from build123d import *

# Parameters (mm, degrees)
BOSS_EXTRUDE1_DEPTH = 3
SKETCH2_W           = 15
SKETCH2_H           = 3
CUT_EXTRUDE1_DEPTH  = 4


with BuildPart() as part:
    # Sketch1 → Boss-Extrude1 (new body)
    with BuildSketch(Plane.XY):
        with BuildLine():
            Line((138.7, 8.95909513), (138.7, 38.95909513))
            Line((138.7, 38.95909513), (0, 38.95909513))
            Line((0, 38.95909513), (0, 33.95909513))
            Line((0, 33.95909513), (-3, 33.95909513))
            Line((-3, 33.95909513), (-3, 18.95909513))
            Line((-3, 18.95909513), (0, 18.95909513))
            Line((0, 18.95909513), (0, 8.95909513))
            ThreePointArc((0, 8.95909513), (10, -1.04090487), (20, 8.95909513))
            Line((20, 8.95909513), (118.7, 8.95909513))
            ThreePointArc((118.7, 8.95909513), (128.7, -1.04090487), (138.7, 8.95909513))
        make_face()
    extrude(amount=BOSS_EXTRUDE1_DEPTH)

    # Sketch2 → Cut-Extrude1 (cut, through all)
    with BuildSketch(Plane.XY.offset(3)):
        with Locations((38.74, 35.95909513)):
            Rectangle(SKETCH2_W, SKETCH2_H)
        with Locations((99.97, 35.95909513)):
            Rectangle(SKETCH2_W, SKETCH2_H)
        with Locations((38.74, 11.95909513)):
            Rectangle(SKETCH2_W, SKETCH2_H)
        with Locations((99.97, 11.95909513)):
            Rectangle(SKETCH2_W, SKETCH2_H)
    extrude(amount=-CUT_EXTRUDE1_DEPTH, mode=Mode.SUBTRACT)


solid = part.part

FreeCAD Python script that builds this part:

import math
import FreeCAD as App
import Part
import Sketcher


def add_polygon(sketch, points):
    """Adds a closed chain of lines whose ends are joined by coincident constraints."""
    first, n = sketch.GeometryCount, len(points)
    for a, b in zip(points, points[1:] + points[:1]):
        sketch.addGeometry(Part.LineSegment(App.Vector(*a, 0), App.Vector(*b, 0)), False)
    for i in range(n):
        sketch.addConstraint(Sketcher.Constraint("Coincident", first + i, 2, first + (i + 1) % n, 1))

doc = App.newDocument("Part")
body = doc.addObject("PartDesign::Body", "Body")

sketch1 = body.newObject("Sketcher::SketchObject", "Sketch")
sketch1.AttachmentSupport = (doc.getObject("XY_Plane"), [""])
sketch1.MapMode = "FlatFace"
sketch1.addGeometry(Part.LineSegment(App.Vector(138.7, 9, 0), App.Vector(138.7, 39, 0)), False)
sketch1.addGeometry(Part.LineSegment(App.Vector(138.7, 39, 0), App.Vector(0, 39, 0)), False)
sketch1.addGeometry(Part.LineSegment(App.Vector(0, 39, 0), App.Vector(0, 34, 0)), False)
sketch1.addGeometry(Part.LineSegment(App.Vector(0, 34, 0), App.Vector(-3, 34, 0)), False)
sketch1.addGeometry(Part.LineSegment(App.Vector(-3, 34, 0), App.Vector(-3, 19, 0)), False)
sketch1.addGeometry(Part.LineSegment(App.Vector(-3, 19, 0), App.Vector(0, 19, 0)), False)
sketch1.addGeometry(Part.LineSegment(App.Vector(0, 19, 0), App.Vector(0, 9, 0)), False)
sketch1.addGeometry(Part.ArcOfCircle(Part.Circle(App.Vector(10, 9, 0), App.Vector(0, 0, 1), 10), math.radians(180), math.radians(360)), False)
sketch1.addGeometry(Part.LineSegment(App.Vector(20, 9, 0), App.Vector(118.7, 9, 0)), False)
sketch1.addGeometry(Part.ArcOfCircle(Part.Circle(App.Vector(128.7, 9, 0), App.Vector(0, 0, 1), 10), math.radians(180), math.radians(360)), False)
sketch1.addConstraint(Sketcher.Constraint("Coincident", 0, 2, 1, 1))
sketch1.addConstraint(Sketcher.Constraint("Coincident", 1, 2, 2, 1))
sketch1.addConstraint(Sketcher.Constraint("Coincident", 2, 2, 3, 1))
sketch1.addConstraint(Sketcher.Constraint("Coincident", 3, 2, 4, 1))
sketch1.addConstraint(Sketcher.Constraint("Coincident", 4, 2, 5, 1))
sketch1.addConstraint(Sketcher.Constraint("Coincident", 5, 2, 6, 1))
sketch1.addConstraint(Sketcher.Constraint("Tangent", 6, 2, 7, 1))
sketch1.addConstraint(Sketcher.Constraint("Coincident", 7, 2, 8, 1))
sketch1.addConstraint(Sketcher.Constraint("Coincident", 8, 2, 9, 1))
sketch1.addConstraint(Sketcher.Constraint("Tangent", 9, 2, 0, 1))
sketch1.addConstraint(Sketcher.Constraint("Vertical", 0))
sketch1.addConstraint(Sketcher.Constraint("Horizontal", 1))
sketch1.addConstraint(Sketcher.Constraint("Vertical", 2))
sketch1.addConstraint(Sketcher.Constraint("Horizontal", 3))
sketch1.addConstraint(Sketcher.Constraint("Vertical", 4))
sketch1.addConstraint(Sketcher.Constraint("Horizontal", 5))
sketch1.addConstraint(Sketcher.Constraint("Vertical", 6))
sketch1.addConstraint(Sketcher.Constraint("Horizontal", 8))
sketch1.addConstraint(Sketcher.Constraint("Equal", 7, 9))
sketch1.addConstraint(Sketcher.Constraint("PointOnObject", 1, 2, -2))
sketch1.addConstraint(Sketcher.Constraint("PointOnObject", 5, 2, -2))
sketch1.addConstraint(Sketcher.Constraint("Horizontal", 7, 3, 9, 3))
sketch1.addConstraint(Sketcher.Constraint("Horizontal", 6, 2, 7, 2))
sketch1.addConstraint(Sketcher.Constraint("Radius", 7, 10.0))
sketch1.addConstraint(Sketcher.Constraint("DistanceX", 3, 2, 3, 1, 3.0))
sketch1.addConstraint(Sketcher.Constraint("DistanceY", 0, 1, 0, 2, 30.0))
sketch1.addConstraint(Sketcher.Constraint("DistanceY", 2, 2, 2, 1, 5.0))
sketch1.addConstraint(Sketcher.Constraint("DistanceY", 4, 2, 4, 1, 15.0))
sketch1.addConstraint(Sketcher.Constraint("DistanceX", 1, 2, 1, 1, 138.7))
sketch1.addConstraint(Sketcher.Constraint("DistanceY", -1, 1, 7, 3, 8.959095))
pad1 = body.newObject("PartDesign::Pad", "Pad")
pad1.Profile = sketch1
pad1.Length = 3

sketch2 = body.newObject("Sketcher::SketchObject", "Sketch001")
sketch2.AttachmentSupport = (doc.getObject("XY_Plane"), [""])
sketch2.MapMode = "FlatFace"
sketch2.AttachmentOffset = App.Placement(App.Vector(0, 0, 3), App.Rotation())
add_polygon(sketch2, [(31.2, 37.5), (31.2, 34.5), (46.2, 34.5), (46.2, 37.5)])
add_polygon(sketch2, [(92.5, 37.5), (92.5, 34.5), (107.5, 34.5), (107.5, 37.5)])
add_polygon(sketch2, [(31.2, 13.5), (31.2, 10.5), (46.2, 10.5), (46.2, 13.5)])
add_polygon(sketch2, [(92.5, 13.5), (92.5, 10.5), (107.5, 10.5), (107.5, 13.5)])
sketch2.addConstraint(Sketcher.Constraint("Vertical", 0))
sketch2.addConstraint(Sketcher.Constraint("Horizontal", 1))
sketch2.addConstraint(Sketcher.Constraint("Vertical", 2))
sketch2.addConstraint(Sketcher.Constraint("Horizontal", 3))
sketch2.addConstraint(Sketcher.Constraint("Vertical", 4))
sketch2.addConstraint(Sketcher.Constraint("Horizontal", 5))
sketch2.addConstraint(Sketcher.Constraint("Vertical", 6))
sketch2.addConstraint(Sketcher.Constraint("Horizontal", 7))
sketch2.addConstraint(Sketcher.Constraint("Vertical", 8))
sketch2.addConstraint(Sketcher.Constraint("Horizontal", 9))
sketch2.addConstraint(Sketcher.Constraint("Vertical", 10))
sketch2.addConstraint(Sketcher.Constraint("Horizontal", 11))
sketch2.addConstraint(Sketcher.Constraint("Vertical", 12))
sketch2.addConstraint(Sketcher.Constraint("Horizontal", 13))
sketch2.addConstraint(Sketcher.Constraint("Vertical", 14))
sketch2.addConstraint(Sketcher.Constraint("Horizontal", 15))
sketch2.addConstraint(Sketcher.Constraint("Horizontal", 1, 2, 4, 2))
sketch2.addConstraint(Sketcher.Constraint("Horizontal", 3, 2, 6, 2))
sketch2.addConstraint(Sketcher.Constraint("Horizontal", 9, 2, 12, 2))
sketch2.addConstraint(Sketcher.Constraint("Horizontal", 11, 2, 14, 2))
sketch2.addConstraint(Sketcher.Constraint("Vertical", 3, 2, 8, 2))
sketch2.addConstraint(Sketcher.Constraint("Vertical", 2, 2, 9, 2))
sketch2.addConstraint(Sketcher.Constraint("Vertical", 7, 2, 12, 2))
sketch2.addConstraint(Sketcher.Constraint("Vertical", 6, 2, 13, 2))
sketch2.addConstraint(Sketcher.Constraint("Equal", 3, 5))
sketch2.addConstraint(Sketcher.Constraint("Equal", 6, 8))
sketch2.addConstraint(Sketcher.Constraint("DistanceX", 1, 1, 1, 2, 15.0))
sketch2.addConstraint(Sketcher.Constraint("DistanceY", 0, 2, 0, 1, 3.0))
sketch2.addConstraint(Sketcher.Constraint("DistanceY", 8, 2, 0, 2, 24.0))
sketch2.addConstraint(Sketcher.Constraint("DistanceX", -1, 1, 0, 2, 31.24))
sketch2.addConstraint(Sketcher.Constraint("DistanceX", -1, 1, 4, 2, 92.47))
sketch2.addConstraint(Sketcher.Constraint("DistanceY", -1, 1, 0, 2, 34.459095))
pocket1 = body.newObject("PartDesign::Pocket", "Pocket")
pocket1.Profile = sketch2
pocket1.Type = "ThroughAll"

doc.recompute()
